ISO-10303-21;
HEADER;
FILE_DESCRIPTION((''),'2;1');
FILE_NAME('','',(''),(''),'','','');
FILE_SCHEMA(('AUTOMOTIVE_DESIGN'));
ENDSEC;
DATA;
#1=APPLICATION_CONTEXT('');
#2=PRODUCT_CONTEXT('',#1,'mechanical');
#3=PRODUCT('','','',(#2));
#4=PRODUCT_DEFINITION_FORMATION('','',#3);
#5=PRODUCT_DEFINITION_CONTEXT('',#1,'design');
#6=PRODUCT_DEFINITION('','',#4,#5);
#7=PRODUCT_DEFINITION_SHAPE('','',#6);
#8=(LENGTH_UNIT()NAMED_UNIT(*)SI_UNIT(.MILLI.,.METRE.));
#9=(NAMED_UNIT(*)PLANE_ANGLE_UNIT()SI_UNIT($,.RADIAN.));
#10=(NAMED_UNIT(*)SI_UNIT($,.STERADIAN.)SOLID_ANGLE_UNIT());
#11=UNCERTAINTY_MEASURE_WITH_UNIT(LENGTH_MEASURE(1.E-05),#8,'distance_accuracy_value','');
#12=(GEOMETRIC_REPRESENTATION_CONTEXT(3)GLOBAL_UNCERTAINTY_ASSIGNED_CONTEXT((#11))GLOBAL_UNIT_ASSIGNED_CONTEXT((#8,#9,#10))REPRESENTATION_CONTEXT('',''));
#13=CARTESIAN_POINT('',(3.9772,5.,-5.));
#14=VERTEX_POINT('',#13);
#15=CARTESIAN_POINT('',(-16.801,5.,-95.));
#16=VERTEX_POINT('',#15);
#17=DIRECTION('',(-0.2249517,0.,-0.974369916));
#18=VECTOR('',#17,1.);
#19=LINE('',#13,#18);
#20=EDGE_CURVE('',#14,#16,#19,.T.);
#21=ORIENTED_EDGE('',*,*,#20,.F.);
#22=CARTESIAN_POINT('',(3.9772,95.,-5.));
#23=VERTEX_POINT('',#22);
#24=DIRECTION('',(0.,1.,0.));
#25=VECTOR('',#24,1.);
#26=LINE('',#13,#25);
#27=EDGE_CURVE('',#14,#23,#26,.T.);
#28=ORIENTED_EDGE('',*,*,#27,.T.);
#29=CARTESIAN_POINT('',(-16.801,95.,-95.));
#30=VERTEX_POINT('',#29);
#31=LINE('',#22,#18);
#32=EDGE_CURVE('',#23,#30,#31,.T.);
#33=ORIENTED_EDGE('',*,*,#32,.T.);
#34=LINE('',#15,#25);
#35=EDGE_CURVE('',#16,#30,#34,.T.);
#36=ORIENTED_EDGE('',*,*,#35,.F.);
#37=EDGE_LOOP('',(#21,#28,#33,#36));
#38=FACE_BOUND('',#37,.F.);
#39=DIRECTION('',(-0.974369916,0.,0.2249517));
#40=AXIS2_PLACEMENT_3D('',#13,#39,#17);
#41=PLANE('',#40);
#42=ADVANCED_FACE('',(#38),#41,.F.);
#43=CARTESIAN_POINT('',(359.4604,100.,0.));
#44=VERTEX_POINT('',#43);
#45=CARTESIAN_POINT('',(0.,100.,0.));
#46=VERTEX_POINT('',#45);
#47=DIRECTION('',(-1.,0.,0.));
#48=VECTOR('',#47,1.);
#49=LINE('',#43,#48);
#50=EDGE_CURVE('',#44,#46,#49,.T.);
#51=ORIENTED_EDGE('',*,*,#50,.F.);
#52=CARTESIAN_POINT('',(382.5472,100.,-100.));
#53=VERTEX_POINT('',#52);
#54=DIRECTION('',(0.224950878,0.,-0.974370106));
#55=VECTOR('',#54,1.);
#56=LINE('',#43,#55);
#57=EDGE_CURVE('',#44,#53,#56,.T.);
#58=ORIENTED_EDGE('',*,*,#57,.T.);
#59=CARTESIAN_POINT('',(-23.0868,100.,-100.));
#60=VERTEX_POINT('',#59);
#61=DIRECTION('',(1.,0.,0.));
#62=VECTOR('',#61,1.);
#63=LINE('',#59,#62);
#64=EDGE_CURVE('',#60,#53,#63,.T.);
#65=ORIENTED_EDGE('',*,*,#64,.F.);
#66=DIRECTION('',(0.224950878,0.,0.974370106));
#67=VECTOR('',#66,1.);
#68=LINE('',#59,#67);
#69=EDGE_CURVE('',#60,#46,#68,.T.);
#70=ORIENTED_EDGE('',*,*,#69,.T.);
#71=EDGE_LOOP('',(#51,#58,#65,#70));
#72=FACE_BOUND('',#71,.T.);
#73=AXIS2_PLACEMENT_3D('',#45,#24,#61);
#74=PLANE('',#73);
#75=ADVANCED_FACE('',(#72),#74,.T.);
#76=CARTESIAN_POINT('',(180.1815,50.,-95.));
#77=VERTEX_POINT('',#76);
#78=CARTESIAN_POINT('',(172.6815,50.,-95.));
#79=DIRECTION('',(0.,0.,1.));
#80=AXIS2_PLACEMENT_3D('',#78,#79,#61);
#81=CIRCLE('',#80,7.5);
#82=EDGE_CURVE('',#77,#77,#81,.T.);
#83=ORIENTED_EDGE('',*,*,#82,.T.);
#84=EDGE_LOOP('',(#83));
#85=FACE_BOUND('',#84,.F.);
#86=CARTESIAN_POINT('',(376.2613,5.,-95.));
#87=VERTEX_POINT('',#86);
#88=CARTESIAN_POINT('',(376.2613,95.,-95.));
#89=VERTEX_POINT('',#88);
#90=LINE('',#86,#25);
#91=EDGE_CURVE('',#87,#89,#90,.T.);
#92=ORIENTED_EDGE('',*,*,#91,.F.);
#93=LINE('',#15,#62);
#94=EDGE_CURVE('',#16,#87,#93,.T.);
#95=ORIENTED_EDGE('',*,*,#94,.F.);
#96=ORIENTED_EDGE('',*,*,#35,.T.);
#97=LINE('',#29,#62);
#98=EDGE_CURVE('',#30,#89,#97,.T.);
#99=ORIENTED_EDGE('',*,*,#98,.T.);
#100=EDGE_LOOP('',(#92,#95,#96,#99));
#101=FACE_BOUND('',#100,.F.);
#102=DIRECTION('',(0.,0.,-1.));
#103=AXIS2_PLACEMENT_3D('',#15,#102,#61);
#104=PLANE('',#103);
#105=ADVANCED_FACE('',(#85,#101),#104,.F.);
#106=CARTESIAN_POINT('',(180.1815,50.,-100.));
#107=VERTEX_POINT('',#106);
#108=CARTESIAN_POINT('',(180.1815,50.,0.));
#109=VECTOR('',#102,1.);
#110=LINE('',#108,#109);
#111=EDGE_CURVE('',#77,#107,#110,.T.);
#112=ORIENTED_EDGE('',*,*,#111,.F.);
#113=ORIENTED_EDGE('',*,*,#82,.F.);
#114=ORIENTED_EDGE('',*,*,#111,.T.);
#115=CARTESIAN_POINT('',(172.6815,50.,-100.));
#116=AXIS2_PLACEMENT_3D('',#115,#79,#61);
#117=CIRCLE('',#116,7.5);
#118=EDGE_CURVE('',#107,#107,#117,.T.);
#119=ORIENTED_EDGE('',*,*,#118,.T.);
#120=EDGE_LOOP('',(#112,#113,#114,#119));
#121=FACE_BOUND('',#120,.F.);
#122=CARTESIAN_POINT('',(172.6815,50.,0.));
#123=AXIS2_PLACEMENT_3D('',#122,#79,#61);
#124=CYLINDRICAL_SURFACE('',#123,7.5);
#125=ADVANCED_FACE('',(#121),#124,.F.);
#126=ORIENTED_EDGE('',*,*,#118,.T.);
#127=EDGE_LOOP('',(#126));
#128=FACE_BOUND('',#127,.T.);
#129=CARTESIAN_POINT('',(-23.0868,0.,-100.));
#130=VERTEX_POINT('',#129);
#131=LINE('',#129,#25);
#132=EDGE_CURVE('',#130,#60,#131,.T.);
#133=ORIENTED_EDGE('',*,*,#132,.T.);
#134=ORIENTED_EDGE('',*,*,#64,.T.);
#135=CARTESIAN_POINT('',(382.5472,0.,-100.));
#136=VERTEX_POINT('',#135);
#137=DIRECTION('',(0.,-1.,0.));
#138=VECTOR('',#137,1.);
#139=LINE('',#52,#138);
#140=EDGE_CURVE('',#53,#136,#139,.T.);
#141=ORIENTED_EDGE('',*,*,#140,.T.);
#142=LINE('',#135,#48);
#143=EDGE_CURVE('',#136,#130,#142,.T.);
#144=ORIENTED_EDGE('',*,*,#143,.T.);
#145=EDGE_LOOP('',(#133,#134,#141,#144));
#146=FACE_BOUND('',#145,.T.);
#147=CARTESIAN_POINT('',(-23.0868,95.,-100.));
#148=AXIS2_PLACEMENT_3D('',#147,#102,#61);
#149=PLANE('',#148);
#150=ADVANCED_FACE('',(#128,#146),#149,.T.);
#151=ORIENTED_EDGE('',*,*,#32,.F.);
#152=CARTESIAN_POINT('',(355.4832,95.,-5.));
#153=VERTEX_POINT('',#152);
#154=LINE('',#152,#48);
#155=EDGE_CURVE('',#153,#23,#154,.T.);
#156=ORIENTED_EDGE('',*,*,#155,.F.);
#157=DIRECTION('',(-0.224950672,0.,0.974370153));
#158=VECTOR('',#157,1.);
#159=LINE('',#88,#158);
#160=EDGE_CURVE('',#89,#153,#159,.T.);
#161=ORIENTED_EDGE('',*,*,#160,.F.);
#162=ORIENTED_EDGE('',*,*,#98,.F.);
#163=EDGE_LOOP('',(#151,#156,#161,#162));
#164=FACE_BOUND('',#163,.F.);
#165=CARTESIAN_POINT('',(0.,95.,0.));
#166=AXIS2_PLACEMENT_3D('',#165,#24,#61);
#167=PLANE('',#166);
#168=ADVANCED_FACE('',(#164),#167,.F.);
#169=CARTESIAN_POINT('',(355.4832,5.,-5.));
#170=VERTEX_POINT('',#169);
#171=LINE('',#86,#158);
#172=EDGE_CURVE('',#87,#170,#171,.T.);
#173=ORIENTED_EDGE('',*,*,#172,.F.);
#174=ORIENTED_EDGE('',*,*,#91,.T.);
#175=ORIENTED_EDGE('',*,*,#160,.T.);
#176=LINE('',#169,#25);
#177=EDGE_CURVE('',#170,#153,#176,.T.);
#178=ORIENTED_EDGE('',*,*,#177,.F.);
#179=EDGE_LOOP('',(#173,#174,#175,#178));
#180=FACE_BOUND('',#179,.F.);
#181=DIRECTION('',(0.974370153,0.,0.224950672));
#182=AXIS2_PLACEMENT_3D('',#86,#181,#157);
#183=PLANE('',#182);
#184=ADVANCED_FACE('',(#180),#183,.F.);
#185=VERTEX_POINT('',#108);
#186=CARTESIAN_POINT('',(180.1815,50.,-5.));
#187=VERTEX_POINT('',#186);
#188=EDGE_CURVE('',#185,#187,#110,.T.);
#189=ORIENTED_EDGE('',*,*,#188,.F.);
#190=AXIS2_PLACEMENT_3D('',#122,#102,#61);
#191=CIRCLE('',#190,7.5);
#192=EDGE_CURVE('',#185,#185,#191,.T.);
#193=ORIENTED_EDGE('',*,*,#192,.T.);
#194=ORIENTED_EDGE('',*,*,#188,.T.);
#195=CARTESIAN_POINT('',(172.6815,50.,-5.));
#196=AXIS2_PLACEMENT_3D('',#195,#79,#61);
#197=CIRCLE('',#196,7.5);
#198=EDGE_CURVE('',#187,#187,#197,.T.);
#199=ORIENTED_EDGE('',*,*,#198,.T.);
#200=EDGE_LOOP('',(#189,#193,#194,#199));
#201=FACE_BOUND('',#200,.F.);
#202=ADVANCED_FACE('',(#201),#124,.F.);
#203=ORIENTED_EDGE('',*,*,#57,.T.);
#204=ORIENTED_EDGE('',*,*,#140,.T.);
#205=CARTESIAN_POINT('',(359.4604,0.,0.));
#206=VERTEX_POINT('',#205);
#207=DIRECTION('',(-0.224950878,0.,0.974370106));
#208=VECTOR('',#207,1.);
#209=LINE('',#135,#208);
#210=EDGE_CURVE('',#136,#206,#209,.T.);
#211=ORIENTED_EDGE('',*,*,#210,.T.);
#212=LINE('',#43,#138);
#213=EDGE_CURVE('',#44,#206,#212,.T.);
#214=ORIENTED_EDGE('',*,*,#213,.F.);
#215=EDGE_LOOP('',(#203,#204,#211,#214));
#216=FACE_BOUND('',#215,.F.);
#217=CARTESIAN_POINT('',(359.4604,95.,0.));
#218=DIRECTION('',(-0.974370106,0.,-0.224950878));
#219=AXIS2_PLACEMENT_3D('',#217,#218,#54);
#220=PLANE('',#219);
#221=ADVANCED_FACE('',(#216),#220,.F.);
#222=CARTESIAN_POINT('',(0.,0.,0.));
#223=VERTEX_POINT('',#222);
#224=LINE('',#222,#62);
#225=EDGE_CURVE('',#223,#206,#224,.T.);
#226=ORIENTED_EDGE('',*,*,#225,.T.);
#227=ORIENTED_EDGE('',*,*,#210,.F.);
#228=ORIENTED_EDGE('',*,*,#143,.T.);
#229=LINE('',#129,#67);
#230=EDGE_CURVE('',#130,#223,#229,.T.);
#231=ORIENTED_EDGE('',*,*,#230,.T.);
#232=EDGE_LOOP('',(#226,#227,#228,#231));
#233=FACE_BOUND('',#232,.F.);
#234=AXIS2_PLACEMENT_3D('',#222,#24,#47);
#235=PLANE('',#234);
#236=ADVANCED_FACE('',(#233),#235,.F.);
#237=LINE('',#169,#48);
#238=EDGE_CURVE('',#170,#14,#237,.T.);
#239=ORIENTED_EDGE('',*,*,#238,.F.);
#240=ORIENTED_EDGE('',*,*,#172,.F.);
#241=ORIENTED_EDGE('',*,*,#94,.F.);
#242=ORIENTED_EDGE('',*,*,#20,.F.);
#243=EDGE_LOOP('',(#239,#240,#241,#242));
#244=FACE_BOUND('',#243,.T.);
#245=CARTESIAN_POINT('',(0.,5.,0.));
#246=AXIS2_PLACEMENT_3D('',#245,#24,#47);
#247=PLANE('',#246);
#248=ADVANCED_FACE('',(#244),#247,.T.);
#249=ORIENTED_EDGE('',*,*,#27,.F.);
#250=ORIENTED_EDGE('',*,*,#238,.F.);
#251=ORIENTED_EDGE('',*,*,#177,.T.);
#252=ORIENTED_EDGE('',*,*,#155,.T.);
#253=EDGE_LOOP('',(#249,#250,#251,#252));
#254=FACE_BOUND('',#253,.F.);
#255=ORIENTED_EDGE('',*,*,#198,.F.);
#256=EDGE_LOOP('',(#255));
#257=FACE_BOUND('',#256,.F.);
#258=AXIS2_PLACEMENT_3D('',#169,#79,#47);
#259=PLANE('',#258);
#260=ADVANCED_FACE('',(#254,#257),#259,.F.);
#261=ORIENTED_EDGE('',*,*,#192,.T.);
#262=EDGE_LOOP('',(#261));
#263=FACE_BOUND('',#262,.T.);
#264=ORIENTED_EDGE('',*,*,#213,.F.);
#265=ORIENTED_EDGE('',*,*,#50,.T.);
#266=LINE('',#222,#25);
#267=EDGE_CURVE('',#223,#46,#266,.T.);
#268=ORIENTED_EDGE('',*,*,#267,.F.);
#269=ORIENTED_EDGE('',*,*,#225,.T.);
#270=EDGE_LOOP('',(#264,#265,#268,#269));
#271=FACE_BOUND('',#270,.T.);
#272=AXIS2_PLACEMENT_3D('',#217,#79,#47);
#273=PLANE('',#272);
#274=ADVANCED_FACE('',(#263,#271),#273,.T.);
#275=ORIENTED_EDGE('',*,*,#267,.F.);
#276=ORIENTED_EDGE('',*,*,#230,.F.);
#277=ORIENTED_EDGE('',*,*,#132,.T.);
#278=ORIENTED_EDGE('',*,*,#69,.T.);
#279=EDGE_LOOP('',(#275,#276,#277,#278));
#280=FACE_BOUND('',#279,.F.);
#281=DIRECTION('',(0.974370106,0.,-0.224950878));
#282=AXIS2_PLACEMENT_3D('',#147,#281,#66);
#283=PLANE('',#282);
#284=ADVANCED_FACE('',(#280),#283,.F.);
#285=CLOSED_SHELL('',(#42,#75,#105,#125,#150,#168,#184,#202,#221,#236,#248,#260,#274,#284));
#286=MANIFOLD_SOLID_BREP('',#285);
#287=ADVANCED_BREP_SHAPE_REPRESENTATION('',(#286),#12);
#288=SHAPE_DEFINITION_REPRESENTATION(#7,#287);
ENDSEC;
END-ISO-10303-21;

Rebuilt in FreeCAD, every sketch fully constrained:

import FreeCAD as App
import Part
import Sketcher
from FreeCAD import Vector
Q = App.Units.Quantity

doc = App.newDocument("Part")
body = doc.addObject("PartDesign::Body", "Body")

sketch1 = body.newObject("Sketcher::SketchObject", "Sketch")
sketch1.AttachmentSupport = (doc.getObject("XZ_Plane"), [""])
sketch1.MapMode = "FlatFace"
sketch1.addGeometry(Part.LineSegment(Vector(-23, -100, 0), Vector(0, 0, 0)), False)
sketch1.addGeometry(Part.LineSegment(Vector(0, 0, 0), Vector(359, 0, 0)), False)
sketch1.addGeometry(Part.LineSegment(Vector(359, 0, 0), Vector(383, -100, 0)), False)
sketch1.addGeometry(Part.LineSegment(Vector(383, -100, 0), Vector(-23, -100, 0)), False)
sketch1.addConstraint(Sketcher.Constraint("Coincident", 0, 2, 1, 1))
sketch1.addConstraint(Sketcher.Constraint("Coincident", 1, 2, 2, 1))
sketch1.addConstraint(Sketcher.Constraint("Coincident", 2, 2, 3, 1))
sketch1.addConstraint(Sketcher.Constraint("Coincident", 3, 2, 0, 1))
sketch1.addConstraint(Sketcher.Constraint("Horizontal", 1))
sketch1.addConstraint(Sketcher.Constraint("Horizontal", 3))
sketch1.addConstraint(Sketcher.Constraint("Coincident", 0, 2, -1, 1))
sketch1.addConstraint(Sketcher.Constraint("Equal", 0, 2))
sketch1.addConstraint(Sketcher.Constraint("DistanceY", 2, 2, -1, 1, 100.0))
sketch1.addConstraint(Sketcher.Constraint("DistanceX", 3, 2, 3, 1, 405.634))
sketch1.addConstraint(Sketcher.Constraint("Angle", 0, Q("77 deg")))
pad1 = body.newObject("PartDesign::Pad", "Pad")
pad1.Profile = sketch1
pad1.Length = 5
pad1.Reversed = True

sketch2 = body.newObject("Sketcher::SketchObject", "Sketch001")
sketch2.AttachmentSupport = (doc.getObject("XZ_Plane"), [""])
sketch2.MapMode = "FlatFace"
sketch2.AttachmentOffset = App.Placement(Vector(0, 0, -5), App.Rotation())
sketch2.addGeometry(Part.LineSegment(Vector(383, -100, 0), Vector(-23, -100, 0)), False)
sketch2.addGeometry(Part.LineSegment(Vector(-23, -100, 0), Vector(0, 0, 0)), False)
sketch2.addGeometry(Part.LineSegment(Vector(0, 0, 0), Vector(359, 0, 0)), False)
sketch2.addGeometry(Part.LineSegment(Vector(359, 0, 0), Vector(383, -100, 0)), False)
sketch2.addGeometry(Part.LineSegment(Vector(355, -5, 0), Vector(4, -5, 0)), False)
sketch2.addGeometry(Part.LineSegment(Vector(4, -5, 0), Vector(-17, -95, 0)), False)
sketch2.addGeometry(Part.LineSegment(Vector(-17, -95, 0), Vector(376, -95, 0)), False)
sketch2.addGeometry(Part.LineSegment(Vector(376, -95, 0), Vector(355, -5, 0)), False)
sketch2.addConstraint(Sketcher.Constraint("Coincident", 0, 2, 1, 1))
sketch2.addConstraint(Sketcher.Constraint("Coincident", 1, 2, 2, 1))
sketch2.addConstraint(Sketcher.Constraint("Coincident", 2, 2, 3, 1))
sketch2.addConstraint(Sketcher.Constraint("Coincident", 3, 2, 0, 1))
sketch2.addConstraint(Sketcher.Constraint("Coincident", 4, 2, 5, 1))
sketch2.addConstraint(Sketcher.Constraint("Coincident", 5, 2, 6, 1))
sketch2.addConstraint(Sketcher.Constraint("Coincident", 6, 2, 7, 1))
sketch2.addConstraint(Sketcher.Constraint("Coincident", 7, 2, 4, 1))
sketch2.addConstraint(Sketcher.Constraint("Horizontal", 0))
sketch2.addConstraint(Sketcher.Constraint("Horizontal", 2))
sketch2.addConstraint(Sketcher.Constraint("Horizontal", 4))
sketch2.addConstraint(Sketcher.Constraint("Horizontal", 6))
sketch2.addConstraint(Sketcher.Constraint("Coincident", 1, 2, -1, 1))
sketch2.addConstraint(Sketcher.Constraint("Parallel", 1, 5))
sketch2.addConstraint(Sketcher.Constraint("Parallel", 3, 7))
sketch2.addConstraint(Sketcher.Constraint("Equal", 1, 3))
sketch2.addConstraint(Sketcher.Constraint("DistanceY", 4, 2, -1, 1, 5.0))
sketch2.addConstraint(Sketcher.Constraint("DistanceY", 0, 2, 5, 2, 5.0))
sketch2.addConstraint(Sketcher.Constraint("Angle", 1, Q("77 deg")))
sketch2.addConstraint(Sketcher.Constraint("DistanceY", 0, 2, -1, 1, 100.0))
sketch2.addConstraint(Sketcher.Constraint("DistanceX", 0, 2, 0, 1, 405.634))
sketch2.addConstraint(Sketcher.Constraint("DistanceX", 4, 2, 4, 1, 351.506))
sketch2.addConstraint(Sketcher.Constraint("DistanceX", 4, 2, 3, 2, 378.57))
pad2 = body.newObject("PartDesign::Pad", "Pad001")
pad2.Profile = sketch2
pad2.Length = 90
pad2.Reversed = True

sketch3 = body.newObject("Sketcher::SketchObject", "Sketch002")
sketch3.AttachmentSupport = (doc.getObject("XY_Plane"), [""])
sketch3.MapMode = "FlatFace"
sketch3.addGeometry(Part.Circle(Vector(173, 50, 0), Vector(0, 0, 1), 8), False)
sketch3.addConstraint(Sketcher.Constraint("Diameter", 0, 15.0))
sketch3.addConstraint(Sketcher.Constraint("DistanceY", -1, 1, 0, 3, 50.0))
sketch3.addConstraint(Sketcher.Constraint("DistanceX", -1, 1, 0, 3, 172.6815))
pocket1 = body.newObject("PartDesign::Pocket", "Pocket")
pocket1.Profile = sketch3
pocket1.Length = 455

sketch4 = body.newObject("Sketcher::SketchObject", "Sketch003")
sketch4.AttachmentSupport = (doc.getObject("XZ_Plane"), [""])
sketch4.MapMode = "FlatFace"
sketch4.AttachmentOffset = App.Placement(Vector(0, 0, -95), App.Rotation())
sketch4.addGeometry(Part.LineSegment(Vector(383, -100, 0), Vector(-23, -100, 0)), False)
sketch4.addGeometry(Part.LineSegment(Vector(-23, -100, 0), Vector(0, 0, 0)), False)
sketch4.addGeometry(Part.LineSegment(Vector(0, 0, 0), Vector(359, 0, 0)), False)
sketch4.addGeometry(Part.LineSegment(Vector(359, 0, 0), Vector(383, -100, 0)), False)
sketch4.addConstraint(Sketcher.Constraint("Coincident", 0, 2, 1, 1))
sketch4.addConstraint(Sketcher.Constraint("Coincident", 1, 2, 2, 1))
sketch4.addConstraint(Sketcher.Constraint("Coincident", 2, 2, 3, 1))
sketch4.addConstraint(Sketcher.Constraint("Coincident", 3, 2, 0, 1))
sketch4.addConstraint(Sketcher.Constraint("Horizontal", 0))
sketch4.addConstraint(Sketcher.Constraint("Horizontal", 2))
sketch4.addConstraint(Sketcher.Constraint("Coincident", 1, 2, -1, 1))
sketch4.addConstraint(Sketcher.Constraint("Equal", 1, 3))
sketch4.addConstraint(Sketcher.Constraint("Angle", 1, Q("77 deg")))
sketch4.addConstraint(Sketcher.Constraint("DistanceY", 0, 2, -1, 1, 100.0))
sketch4.addConstraint(Sketcher.Constraint("DistanceX", 0, 2, 0, 1, 405.634))
pad3 = body.newObject("PartDesign::Pad", "Pad002")
pad3.Profile = sketch4
pad3.Length = 5
pad3.Reversed = True

doc.recompute()
